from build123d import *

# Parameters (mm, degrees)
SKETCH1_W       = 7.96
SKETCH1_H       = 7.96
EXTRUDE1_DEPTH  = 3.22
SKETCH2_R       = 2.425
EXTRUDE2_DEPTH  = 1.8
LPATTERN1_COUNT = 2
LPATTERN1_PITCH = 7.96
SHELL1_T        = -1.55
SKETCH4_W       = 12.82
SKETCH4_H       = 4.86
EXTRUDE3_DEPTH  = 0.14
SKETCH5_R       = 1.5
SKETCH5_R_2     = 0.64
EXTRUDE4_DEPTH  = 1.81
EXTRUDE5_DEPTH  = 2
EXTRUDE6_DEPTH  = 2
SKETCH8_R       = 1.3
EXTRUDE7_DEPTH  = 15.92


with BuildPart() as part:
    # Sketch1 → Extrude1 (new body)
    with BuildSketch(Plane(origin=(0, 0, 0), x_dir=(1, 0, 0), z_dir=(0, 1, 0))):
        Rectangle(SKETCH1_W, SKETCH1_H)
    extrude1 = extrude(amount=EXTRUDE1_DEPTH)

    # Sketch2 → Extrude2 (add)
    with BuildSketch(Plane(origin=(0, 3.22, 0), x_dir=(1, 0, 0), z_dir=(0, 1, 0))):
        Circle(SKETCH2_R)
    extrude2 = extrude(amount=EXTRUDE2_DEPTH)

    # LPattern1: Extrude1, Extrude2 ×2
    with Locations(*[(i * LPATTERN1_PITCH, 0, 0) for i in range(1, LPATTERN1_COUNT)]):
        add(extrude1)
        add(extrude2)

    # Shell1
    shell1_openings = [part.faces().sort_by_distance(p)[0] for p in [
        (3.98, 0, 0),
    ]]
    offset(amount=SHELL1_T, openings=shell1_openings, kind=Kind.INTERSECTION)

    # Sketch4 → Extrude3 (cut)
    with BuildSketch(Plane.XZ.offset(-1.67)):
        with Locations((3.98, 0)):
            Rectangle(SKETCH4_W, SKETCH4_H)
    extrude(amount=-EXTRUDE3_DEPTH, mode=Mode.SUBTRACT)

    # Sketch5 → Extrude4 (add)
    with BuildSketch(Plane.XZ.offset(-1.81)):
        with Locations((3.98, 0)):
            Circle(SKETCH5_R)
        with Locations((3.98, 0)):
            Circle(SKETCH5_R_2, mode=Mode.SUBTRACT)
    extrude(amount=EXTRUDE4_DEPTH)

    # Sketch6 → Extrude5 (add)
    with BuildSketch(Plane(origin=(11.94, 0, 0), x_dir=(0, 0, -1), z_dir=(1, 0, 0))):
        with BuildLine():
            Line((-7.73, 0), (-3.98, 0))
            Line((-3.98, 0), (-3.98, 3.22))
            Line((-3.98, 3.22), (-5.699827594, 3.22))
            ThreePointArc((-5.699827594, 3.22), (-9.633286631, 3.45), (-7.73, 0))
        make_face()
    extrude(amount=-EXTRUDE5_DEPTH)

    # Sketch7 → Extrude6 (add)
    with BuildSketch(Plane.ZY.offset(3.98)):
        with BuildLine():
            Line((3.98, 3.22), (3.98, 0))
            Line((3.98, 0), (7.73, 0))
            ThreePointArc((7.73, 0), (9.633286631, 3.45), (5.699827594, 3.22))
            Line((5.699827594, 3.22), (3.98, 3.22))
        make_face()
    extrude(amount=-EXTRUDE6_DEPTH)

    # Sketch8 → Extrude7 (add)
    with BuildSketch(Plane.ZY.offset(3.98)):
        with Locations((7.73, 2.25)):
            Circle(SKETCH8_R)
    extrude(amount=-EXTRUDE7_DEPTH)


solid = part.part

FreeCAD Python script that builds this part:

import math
import FreeCAD as App
import Part
import Sketcher
Q = App.Units.Quantity


def faces_at(feature, points):
    """Names of the faces that lie closest to the given points."""
    faces = feature.Shape.Faces
    near = lambda p: min(range(len(faces)), key=lambda i: faces[i].distToShape(Part.Vertex(*p))[0])
    return sorted({f"Face{near(p) + 1}" for p in points})


def add_polygon(sketch, points):
    """Adds a closed chain of lines whose ends are joined by coincident constraints."""
    first, n = sketch.GeometryCount, len(points)
    for a, b in zip(points, points[1:] + points[:1]):
        sketch.addGeometry(Part.LineSegment(App.Vector(*a, 0), App.Vector(*b, 0)), False)
    for i in range(n):
        sketch.addConstraint(Sketcher.Constraint("Coincident", first + i, 2, first + (i + 1) % n, 1))

doc = App.newDocument("Part")
body = doc.addObject("PartDesign::Body", "Body")

# Sketch on XZ plane
sketch1 = body.newObject("Sketcher::SketchObject", "Sketch")
sketch1.AttachmentSupport = (doc.getObject("XZ_Plane"), [""])
sketch1.MapMode = "FlatFace"
add_polygon(sketch1, [(-3.98, -3.98), (-3.98, 3.98), (3.98, 3.98), (3.98, -3.98)])  # lines 0-3
sketch1.addConstraint([
    Sketcher.Constraint("Vertical", 0),
    Sketcher.Constraint("Horizontal", 1),
    Sketcher.Constraint("Vertical", 2),
    Sketcher.Constraint("Horizontal", 3),
    Sketcher.Constraint("Symmetric", 0, 2, 2, 2, -1, 1),
    Sketcher.Constraint("Equal", 3, 0),
    Sketcher.Constraint("DistanceX", 1, 1, 1, 2, Q("7.96 mm")),
])
pad1 = body.newObject("PartDesign::Pad", "Pad")
pad1.Profile = sketch1
pad1.Length = 3.22
pad1.Reversed = True

# Sketch on XZ plane
sketch2 = body.newObject("Sketcher::SketchObject", "Sketch001")
sketch2.AttachmentSupport = (doc.getObject("XZ_Plane"), [""])
sketch2.MapMode = "FlatFace"
sketch2.AttachmentOffset = App.Placement(App.Vector(0, 0, -3.22), App.Rotation())
sketch2.addGeometry(Part.Circle(App.Vector(0, 0, 0), App.Vector(0, 0, 1), 2.425), False)
sketch2.addConstraint([
    Sketcher.Constraint("Coincident", 0, 3, -1, 1),
    Sketcher.Constraint("Diameter", 0, Q("4.85 mm")),
])
pad2 = body.newObject("PartDesign::Pad", "Pad001")
pad2.Profile = sketch2
pad2.Length = 1.8
pad2.Reversed = True
doc.recompute()

linearpattern = body.newObject("PartDesign::LinearPattern", "LinearPattern")
linearpattern.Originals = [pad1, pad2]
linearpattern.Direction = (doc.getObject("X_Axis"), [""])
linearpattern.Mode = "offset"
linearpattern.Offset = 7.96
linearpattern.Occurrences = 2
body.Tip = linearpattern
doc.recompute()

thickness = body.newObject("PartDesign::Thickness", "Thickness")
thickness.Base = (linearpattern, faces_at(linearpattern, [(3.98, 0, 0)]))
thickness.Value = 1.55
thickness.Reversed = True
thickness.Join = "Intersection"

# Sketch on XZ plane
sketch3 = body.newObject("Sketcher::SketchObject", "Sketch002")
sketch3.AttachmentSupport = (doc.getObject("XZ_Plane"), [""])
sketch3.MapMode = "FlatFace"
sketch3.AttachmentOffset = App.Placement(App.Vector(0, 0, -1.67), App.Rotation())
add_polygon(sketch3, [(-2.43, 2.43), (-2.43, -2.43), (10.39, -2.43), (10.39, 2.43)])  # lines 0-3
sketch3.addConstraint([
    Sketcher.Constraint("Vertical", 0),
    Sketcher.Constraint("Horizontal", 1),
    Sketcher.Constraint("Vertical", 2),
    Sketcher.Constraint("Horizontal", 3),
    Sketcher.Constraint("DistanceX", 1, 1, 1, 2, Q("12.82 mm")),
    Sketcher.Constraint("DistanceY", 0, 2, 0, 1, Q("4.86 mm")),
    Sketcher.Constraint("DistanceX", 0, 2, -1, 1, Q("2.43 mm")),
    Sketcher.Constraint("DistanceY", 0, 2, -1, 1, Q("2.43 mm")),
])
pocket1 = body.newObject("PartDesign::Pocket", "Pocket")
pocket1.Profile = sketch3
pocket1.Length = 0.14

# Sketch on XZ plane
sketch4 = body.newObject("Sketcher::SketchObject", "Sketch003")
sketch4.AttachmentSupport = (doc.getObject("XZ_Plane"), [""])
sketch4.MapMode = "FlatFace"
sketch4.AttachmentOffset = App.Placement(App.Vector(0, 0, -1.81), App.Rotation())
sketch4.addGeometry([
    Part.Circle(App.Vector(3.98, 0, 0), App.Vector(0, 0, 1), 1.5),
    Part.Circle(App.Vector(3.98, 0, 0), App.Vector(0, 0, 1), 0.64),
], False)
sketch4.addConstraint([
    Sketcher.Constraint("Coincident", 1, 3, 0, 3),
    Sketcher.Constraint("PointOnObject", 0, 3, -1),
    Sketcher.Constraint("Diameter", 0, Q("3 mm")),
    Sketcher.Constraint("Diameter", 1, Q("1.28 mm")),
    Sketcher.Constraint("DistanceX", -1, 1, 0, 3, Q("3.98 mm")),
])
pad3 = body.newObject("PartDesign::Pad", "Pad002")
pad3.Profile = sketch4
pad3.Length = 1.81

# Sketch on YZ plane
sketch5 = body.newObject("Sketcher::SketchObject", "Sketch004")
sketch5.AttachmentSupport = (doc.getObject("YZ_Plane"), [""])
sketch5.MapMode = "FlatFace"
sketch5.AttachmentOffset = App.Placement(App.Vector(0, 0, 11.94), App.Rotation())
sketch5.addGeometry([
    Part.LineSegment(App.Vector(0, 7.73, 0), App.Vector(0, 3.98, 0)),
    Part.LineSegment(App.Vector(0, 3.98, 0), App.Vector(3.22, 3.98, 0)),
    Part.LineSegment(App.Vector(3.22, 3.98, 0), App.Vector(3.22, 5.699828, 0)),
    Part.ArcOfCircle(Part.Circle(App.Vector(2.25, 7.73, 0), App.Vector(0, 0, 1), 2.25), math.radians(-64.461905), math.radians(180)),
], False)
sketch5.addConstraint([
    Sketcher.Constraint("Coincident", 0, 2, 1, 1),
    Sketcher.Constraint("Coincident", 1, 2, 2, 1),
    Sketcher.Constraint("Coincident", 2, 2, 3, 1),
    Sketcher.Constraint("Tangent", 3, 2, 0, 1),
    Sketcher.Constraint("Vertical", 0),
    Sketcher.Constraint("Horizontal", 1),
    Sketcher.Constraint("Vertical", 2),
    Sketcher.Constraint("PointOnObject", 0, 2, -2),
    Sketcher.Constraint("Radius", 3, Q("2.25 mm")),
    Sketcher.Constraint("DistanceX", 1, 1, 1, 2, Q("3.22 mm")),
    Sketcher.Constraint("DistanceY", 0, 2, 0, 1, Q("3.75 mm")),
    Sketcher.Constraint("DistanceY", -1, 1, 3, 3, Q("7.73 mm")),
])
pad4 = body.newObject("PartDesign::Pad", "Pad003")
pad4.Profile = sketch5
pad4.Length = 2
pad4.Reversed = True

# Sketch on YZ plane
sketch6 = body.newObject("Sketcher::SketchObject", "Sketch005")
sketch6.AttachmentSupport = (doc.getObject("YZ_Plane"), [""])
sketch6.MapMode = "FlatFace"
sketch6.AttachmentOffset = App.Placement(App.Vector(0, 0, -3.98), App.Rotation())
sketch6.addGeometry([
    Part.LineSegment(App.Vector(3.22, 3.98, 0), App.Vector(0, 3.98, 0)),
    Part.LineSegment(App.Vector(0, 3.98, 0), App.Vector(0, 7.73, 0)),
    Part.ArcOfCircle(Part.Circle(App.Vector(2.25, 7.73, 0), App.Vector(0, 0, 1), 2.25), math.radians(-64.461905), math.radians(180)),
    Part.LineSegment(App.Vector(3.22, 5.699828, 0), App.Vector(3.22, 3.98, 0)),
], False)
sketch6.addConstraint([
    Sketcher.Constraint("Coincident", 0, 2, 1, 1),
    Sketcher.Constraint("Tangent", 1, 2, 2, 2),
    Sketcher.Constraint("Coincident", 2, 1, 3, 1),
    Sketcher.Constraint("Coincident", 3, 2, 0, 1),
    Sketcher.Constraint("Horizontal", 0),
    Sketcher.Constraint("Vertical", 1),
    Sketcher.Constraint("Vertical", 3),
    Sketcher.Constraint("PointOnObject", 0, 2, -2),
    Sketcher.Constraint("Radius", 2, Q("2.25 mm")),
    Sketcher.Constraint("DistanceX", 0, 2, 0, 1, Q("3.22 mm")),
    Sketcher.Constraint("DistanceY", 1, 1, 1, 2, Q("3.75 mm")),
    Sketcher.Constraint("DistanceY", -1, 1, 2, 3, Q("7.73 mm")),
])
pad5 = body.newObject("PartDesign::Pad", "Pad004")
pad5.Profile = sketch6
pad5.Length = 2

# Sketch on YZ plane
sketch7 = body.newObject("Sketcher::SketchObject", "Sketch006")
sketch7.AttachmentSupport = (doc.getObject("YZ_Plane"), [""])
sketch7.MapMode = "FlatFace"
sketch7.AttachmentOffset = App.Placement(App.Vector(0, 0, -3.98), App.Rotation())
sketch7.addGeometry(Part.Circle(App.Vector(2.25, 7.73, 0), App.Vector(0, 0, 1), 1.3), False)
sketch7.addConstraint([
    Sketcher.Constraint("Diameter", 0, Q("2.6 mm")),
    Sketcher.Constraint("DistanceX", -1, 1, 0, 3, Q("2.25 mm")),
    Sketcher.Constraint("DistanceY", -1, 1, 0, 3, Q("7.73 mm")),
])
pad6 = body.newObject("PartDesign::Pad", "Pad005")
pad6.Profile = sketch7
pad6.Length = 15.92

doc.recompute()
